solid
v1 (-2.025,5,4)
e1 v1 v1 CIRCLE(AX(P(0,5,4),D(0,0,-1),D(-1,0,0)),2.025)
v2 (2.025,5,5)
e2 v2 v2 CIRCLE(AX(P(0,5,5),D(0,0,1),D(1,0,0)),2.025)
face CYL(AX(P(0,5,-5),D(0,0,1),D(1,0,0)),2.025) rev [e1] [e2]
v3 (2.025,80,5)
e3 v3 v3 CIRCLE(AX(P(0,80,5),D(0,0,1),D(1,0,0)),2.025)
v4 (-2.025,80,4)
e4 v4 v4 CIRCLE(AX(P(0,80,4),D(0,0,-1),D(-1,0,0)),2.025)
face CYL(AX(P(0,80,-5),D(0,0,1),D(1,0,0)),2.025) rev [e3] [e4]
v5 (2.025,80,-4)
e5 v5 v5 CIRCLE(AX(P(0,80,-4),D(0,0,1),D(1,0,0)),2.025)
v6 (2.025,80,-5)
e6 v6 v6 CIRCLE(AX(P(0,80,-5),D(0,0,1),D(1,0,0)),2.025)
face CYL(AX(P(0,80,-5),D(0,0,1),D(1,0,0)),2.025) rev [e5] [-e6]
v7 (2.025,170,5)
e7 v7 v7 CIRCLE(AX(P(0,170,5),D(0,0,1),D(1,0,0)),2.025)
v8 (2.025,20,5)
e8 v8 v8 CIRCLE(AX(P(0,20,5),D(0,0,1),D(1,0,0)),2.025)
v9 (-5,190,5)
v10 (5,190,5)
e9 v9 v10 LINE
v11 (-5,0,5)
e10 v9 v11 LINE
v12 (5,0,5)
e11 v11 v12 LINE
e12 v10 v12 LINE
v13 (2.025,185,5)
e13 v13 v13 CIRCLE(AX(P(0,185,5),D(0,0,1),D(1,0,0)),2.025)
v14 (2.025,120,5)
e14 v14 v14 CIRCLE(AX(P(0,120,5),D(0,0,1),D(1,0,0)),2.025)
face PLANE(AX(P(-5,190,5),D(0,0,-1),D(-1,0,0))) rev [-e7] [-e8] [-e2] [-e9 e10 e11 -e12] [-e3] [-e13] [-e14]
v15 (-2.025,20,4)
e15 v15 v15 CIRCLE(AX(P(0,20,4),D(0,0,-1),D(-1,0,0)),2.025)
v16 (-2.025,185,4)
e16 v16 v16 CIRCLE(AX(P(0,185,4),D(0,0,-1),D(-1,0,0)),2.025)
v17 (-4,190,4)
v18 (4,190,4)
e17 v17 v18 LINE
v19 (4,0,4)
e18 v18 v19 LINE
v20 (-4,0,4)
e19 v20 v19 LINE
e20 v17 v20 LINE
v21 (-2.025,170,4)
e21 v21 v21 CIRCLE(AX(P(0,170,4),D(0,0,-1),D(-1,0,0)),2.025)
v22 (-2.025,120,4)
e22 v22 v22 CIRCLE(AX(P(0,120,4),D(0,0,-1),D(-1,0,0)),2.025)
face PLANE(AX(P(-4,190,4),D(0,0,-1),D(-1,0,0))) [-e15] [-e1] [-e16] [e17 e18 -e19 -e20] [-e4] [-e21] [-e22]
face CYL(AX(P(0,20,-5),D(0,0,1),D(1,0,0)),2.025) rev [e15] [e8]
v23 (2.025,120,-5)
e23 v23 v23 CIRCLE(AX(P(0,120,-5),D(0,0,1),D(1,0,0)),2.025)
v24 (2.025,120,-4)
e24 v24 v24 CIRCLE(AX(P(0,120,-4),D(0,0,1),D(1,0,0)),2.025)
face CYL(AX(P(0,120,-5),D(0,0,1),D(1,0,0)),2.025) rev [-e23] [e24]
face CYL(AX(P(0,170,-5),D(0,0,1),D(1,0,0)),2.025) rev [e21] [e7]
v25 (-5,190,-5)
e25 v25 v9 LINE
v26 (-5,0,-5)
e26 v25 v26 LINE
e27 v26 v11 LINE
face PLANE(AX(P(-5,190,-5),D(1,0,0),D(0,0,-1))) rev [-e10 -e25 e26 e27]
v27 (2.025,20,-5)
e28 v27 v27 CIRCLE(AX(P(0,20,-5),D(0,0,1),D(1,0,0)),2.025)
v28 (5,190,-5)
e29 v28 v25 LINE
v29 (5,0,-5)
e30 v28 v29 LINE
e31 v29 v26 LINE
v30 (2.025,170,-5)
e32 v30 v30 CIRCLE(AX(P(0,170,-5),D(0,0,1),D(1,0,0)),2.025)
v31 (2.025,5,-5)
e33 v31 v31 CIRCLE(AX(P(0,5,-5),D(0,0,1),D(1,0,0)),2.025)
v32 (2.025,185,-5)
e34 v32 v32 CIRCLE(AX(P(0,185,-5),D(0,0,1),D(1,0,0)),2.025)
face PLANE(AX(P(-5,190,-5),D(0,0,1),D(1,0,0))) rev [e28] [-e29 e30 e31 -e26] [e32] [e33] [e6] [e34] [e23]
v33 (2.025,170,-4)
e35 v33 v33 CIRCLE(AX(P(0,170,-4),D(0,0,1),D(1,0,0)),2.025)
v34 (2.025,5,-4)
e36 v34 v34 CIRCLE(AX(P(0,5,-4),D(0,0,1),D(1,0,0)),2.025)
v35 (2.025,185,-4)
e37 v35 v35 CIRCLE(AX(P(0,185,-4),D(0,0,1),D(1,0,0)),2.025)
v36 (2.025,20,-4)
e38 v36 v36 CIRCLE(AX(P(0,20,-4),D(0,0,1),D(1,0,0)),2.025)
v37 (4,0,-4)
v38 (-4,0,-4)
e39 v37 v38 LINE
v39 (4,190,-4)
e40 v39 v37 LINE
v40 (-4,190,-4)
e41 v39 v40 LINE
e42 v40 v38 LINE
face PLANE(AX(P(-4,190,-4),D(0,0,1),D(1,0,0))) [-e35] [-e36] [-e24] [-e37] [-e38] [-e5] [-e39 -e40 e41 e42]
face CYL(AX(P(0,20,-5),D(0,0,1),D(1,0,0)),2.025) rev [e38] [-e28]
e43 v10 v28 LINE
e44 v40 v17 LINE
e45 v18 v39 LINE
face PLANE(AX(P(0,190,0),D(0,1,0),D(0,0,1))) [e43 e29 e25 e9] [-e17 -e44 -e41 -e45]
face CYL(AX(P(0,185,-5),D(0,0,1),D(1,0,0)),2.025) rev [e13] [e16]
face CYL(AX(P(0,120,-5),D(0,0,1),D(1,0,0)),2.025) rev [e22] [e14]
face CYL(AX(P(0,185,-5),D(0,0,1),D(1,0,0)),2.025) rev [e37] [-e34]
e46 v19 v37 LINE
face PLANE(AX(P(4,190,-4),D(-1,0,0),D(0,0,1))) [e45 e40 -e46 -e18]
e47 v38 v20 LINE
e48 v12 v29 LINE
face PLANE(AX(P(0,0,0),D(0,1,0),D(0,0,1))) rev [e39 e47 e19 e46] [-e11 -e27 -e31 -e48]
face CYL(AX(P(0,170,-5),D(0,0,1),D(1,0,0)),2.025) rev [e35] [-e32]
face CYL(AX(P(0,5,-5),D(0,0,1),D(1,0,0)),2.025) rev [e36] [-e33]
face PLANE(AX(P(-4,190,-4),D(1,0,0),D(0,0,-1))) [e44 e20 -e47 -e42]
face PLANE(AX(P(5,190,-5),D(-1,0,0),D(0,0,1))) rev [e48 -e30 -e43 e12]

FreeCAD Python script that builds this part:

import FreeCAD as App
import Part
import Sketcher
from FreeCAD import Vector
Q = App.Units.Quantity


def add_polygon(sketch, points):
    """Adds a closed chain of lines whose ends are joined by coincident constraints."""
    first, n = sketch.GeometryCount, len(points)
    for a, b in zip(points, points[1:] + points[:1]):
        sketch.addGeometry(Part.LineSegment(App.Vector(*a, 0), App.Vector(*b, 0)), False)
    for i in range(n):
        sketch.addConstraint(Sketcher.Constraint("Coincident", first + i, 2, first + (i + 1) % n, 1))

doc = App.newDocument("Part")
body = doc.addObject("PartDesign::Body", "Body")

sketch1 = doc.addObject("Sketcher::SketchObject", "Sketch")
body.addObject(sketch1)
sketch1.AttachmentSupport = (doc.XZ_Plane, [""])
sketch1.MapMode = "FlatFace"
add_polygon(sketch1, [(-5, -5), (-5, 5), (5, 5), (5, -5)])
add_polygon(sketch1, [(4, 4), (-4, 4), (-4, -4), (4, -4)])
sketch1.addConstraint(Sketcher.Constraint("Vertical", 0))
sketch1.addConstraint(Sketcher.Constraint("Horizontal", 1))
sketch1.addConstraint(Sketcher.Constraint("Vertical", 2))
sketch1.addConstraint(Sketcher.Constraint("Horizontal", 3))
sketch1.addConstraint(Sketcher.Constraint("Horizontal", 4))
sketch1.addConstraint(Sketcher.Constraint("Vertical", 5))
sketch1.addConstraint(Sketcher.Constraint("Horizontal", 6))
sketch1.addConstraint(Sketcher.Constraint("Vertical", 7))
sketch1.addConstraint(Sketcher.Constraint("Symmetric", 0, 2, 2, 2, -1, 1))
sketch1.addConstraint(Sketcher.Constraint("Symmetric", 4, 2, 6, 2, -1, 1))
sketch1.addConstraint(Sketcher.Constraint("Equal", 3, 0))
sketch1.addConstraint(Sketcher.Constraint("Equal", 6, 5))
sketch1.addConstraint(Sketcher.Constraint("DistanceX", 1, 1, 1, 2, Q("10 mm")))
sketch1.addConstraint(Sketcher.Constraint("DistanceX", 4, 2, 4, 1, Q("8 mm")))
pad1 = doc.addObject("PartDesign::Pad", "Pad")
body.addObject(pad1)
pad1.Profile = sketch1
pad1.Length = 190
pad1.Reversed = True

sketch2 = doc.addObject("Sketcher::SketchObject", "Sketch001")
body.addObject(sketch2)
sketch2.AttachmentSupport = (doc.XY_Plane, [""])
sketch2.MapMode = "FlatFace"
sketch2.AttachmentOffset = App.Placement(Vector(0, 0, 5), App.Rotation())
sketch2.addGeometry(Part.Circle(Vector(0, 120, 0), Vector(0, 0, 1), 2), False)
sketch2.addGeometry(Part.Circle(Vector(0, 80, 0), Vector(0, 0, 1), 2), False)
sketch2.addConstraint(Sketcher.Constraint("Equal", 0, 1))
sketch2.addConstraint(Sketcher.Constraint("PointOnObject", 0, 3, -2))
sketch2.addConstraint(Sketcher.Constraint("PointOnObject", 1, 3, -2))
sketch2.addConstraint(Sketcher.Constraint("Diameter", 0, Q("4.05 mm")))
sketch2.addConstraint(Sketcher.Constraint("DistanceY", -1, 1, 0, 3, Q("120 mm")))
sketch2.addConstraint(Sketcher.Constraint("DistanceY", -1, 1, 1, 3, Q("80 mm")))
pocket1 = doc.addObject("PartDesign::Pocket", "Pocket")
body.addObject(pocket1)
pocket1.Profile = sketch2
pocket1.Type = "ThroughAll"

sketch3 = doc.addObject("Sketcher::SketchObject", "Sketch002")
body.addObject(sketch3)
sketch3.AttachmentSupport = (doc.XY_Plane, [""])
sketch3.MapMode = "FlatFace"
sketch3.AttachmentOffset = App.Placement(Vector(0, 0, 5), App.Rotation())
sketch3.addGeometry(Part.Circle(Vector(0, 185, 0), Vector(0, 0, 1), 2), False)
sketch3.addGeometry(Part.Circle(Vector(0, 170, 0), Vector(0, 0, 1), 2), False)
sketch3.addGeometry(Part.Circle(Vector(0, 5, 0), Vector(0, 0, 1), 2), False)
sketch3.addGeometry(Part.Circle(Vector(0, 20, 0), Vector(0, 0, 1), 2), False)
sketch3.addConstraint(Sketcher.Constraint("Equal", 0, 1))
sketch3.addConstraint(Sketcher.Constraint("Equal", 1, 2))
sketch3.addConstraint(Sketcher.Constraint("Equal", 2, 3))
sketch3.addConstraint(Sketcher.Constraint("PointOnObject", 0, 3, -2))
sketch3.addConstraint(Sketcher.Constraint("PointOnObject", 1, 3, -2))
sketch3.addConstraint(Sketcher.Constraint("PointOnObject", 2, 3, -2))
sketch3.addConstraint(Sketcher.Constraint("PointOnObject", 3, 3, -2))
sketch3.addConstraint(Sketcher.Constraint("Diameter", 0, Q("4.05 mm")))
sketch3.addConstraint(Sketcher.Constraint("DistanceY", -1, 1, 0, 3, Q("185 mm")))
sketch3.addConstraint(Sketcher.Constraint("DistanceY", -1, 1, 1, 3, Q("170 mm")))
sketch3.addConstraint(Sketcher.Constraint("DistanceY", -1, 1, 2, 3, Q("5 mm")))
sketch3.addConstraint(Sketcher.Constraint("DistanceY", -1, 1, 3, 3, Q("20 mm")))
pocket2 = doc.addObject("PartDesign::Pocket", "Pocket001")
body.addObject(pocket2)
pocket2.Profile = sketch3
pocket2.Type = "ThroughAll"

doc.recompute()
